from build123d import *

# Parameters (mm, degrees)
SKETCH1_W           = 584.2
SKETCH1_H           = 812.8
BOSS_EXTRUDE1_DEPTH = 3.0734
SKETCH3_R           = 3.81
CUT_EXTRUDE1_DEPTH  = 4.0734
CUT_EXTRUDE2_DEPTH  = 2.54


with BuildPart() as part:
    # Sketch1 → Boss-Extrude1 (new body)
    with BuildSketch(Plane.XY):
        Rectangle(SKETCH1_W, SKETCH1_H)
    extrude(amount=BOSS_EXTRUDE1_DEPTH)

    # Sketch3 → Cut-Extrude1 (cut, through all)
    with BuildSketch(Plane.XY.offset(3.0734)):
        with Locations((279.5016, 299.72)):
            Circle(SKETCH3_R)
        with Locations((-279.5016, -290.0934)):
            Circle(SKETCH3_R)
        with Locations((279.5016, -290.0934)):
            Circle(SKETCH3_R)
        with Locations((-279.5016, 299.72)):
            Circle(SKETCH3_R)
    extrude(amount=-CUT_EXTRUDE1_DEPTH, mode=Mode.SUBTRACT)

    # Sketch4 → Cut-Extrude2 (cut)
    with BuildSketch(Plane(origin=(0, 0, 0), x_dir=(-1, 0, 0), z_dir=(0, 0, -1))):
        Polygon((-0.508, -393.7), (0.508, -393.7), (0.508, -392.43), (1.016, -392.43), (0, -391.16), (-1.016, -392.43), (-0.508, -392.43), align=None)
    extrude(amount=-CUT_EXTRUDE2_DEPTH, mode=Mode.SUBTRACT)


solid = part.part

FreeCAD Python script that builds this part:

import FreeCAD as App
import Part
import Sketcher
Q = App.Units.Quantity

doc = App.newDocument("Part")
params = doc.addObject("Spreadsheet::Sheet", "Params")
for row, (alias, value) in enumerate([
    ("sketch1_width", "23 in"),
    ("sketch1_height", "32 in"),
    ("pad1_length", "0.121 in"),
    ("sketch2_diameter", "0.3 in"),
    ("sketch3_width", "0.04 in"),
    ("sketch3_width2", "0.02 in"),
    ("sketch3_height", "0.05 in"),
    ("pocket2_length", "0.1 in"),
], start=1):
    params.set(f"A{row}", alias)
    params.set(f"B{row}", "=" + value)
    params.setAlias(f"B{row}", alias)

body = doc.addObject("PartDesign::Body", "Body")

sketch1 = doc.addObject("Sketcher::SketchObject", "Sketch")
body.addObject(sketch1)
sketch1.AttachmentSupport = (doc.XY_Plane, [""])
sketch1.MapMode = "FlatFace"
sketch1.addGeometry([
    Part.LineSegment(App.Vector(-292.1, 406.4, 0), App.Vector(-292.1, -406.4, 0)),
    Part.LineSegment(App.Vector(-292.1, -406.4, 0), App.Vector(292.1, -406.4, 0)),
    Part.LineSegment(App.Vector(292.1, -406.4, 0), App.Vector(292.1, 406.4, 0)),
    Part.LineSegment(App.Vector(292.1, 406.4, 0), App.Vector(-292.1, 406.4, 0)),
], False)
sketch1.addConstraint([
    Sketcher.Constraint("Coincident", 0, 2, 1, 1),
    Sketcher.Constraint("Coincident", 1, 2, 2, 1),
    Sketcher.Constraint("Coincident", 2, 2, 3, 1),
    Sketcher.Constraint("Coincident", 3, 2, 0, 1),
    Sketcher.Constraint("Vertical", 0),
    Sketcher.Constraint("Horizontal", 1),
    Sketcher.Constraint("Vertical", 2),
    Sketcher.Constraint("Horizontal", 3),
    Sketcher.Constraint("Symmetric", 0, 2, 2, 2, -1, 1),
    Sketcher.Constraint("DistanceX", 1, 1, 1, 2, Q("23 in")),
    Sketcher.Constraint("DistanceY", 0, 2, 0, 1, Q("32 in")),
])
sketch1.setExpression("Constraints[9]", "Params.sketch1_width")
sketch1.setExpression("Constraints[10]", "Params.sketch1_height")
pad1 = doc.addObject("PartDesign::Pad", "Pad")
body.addObject(pad1)
pad1.Profile = sketch1
pad1.setExpression("Length", "Params.pad1_length")

sketch2 = doc.addObject("Sketcher::SketchObject", "Sketch001")
body.addObject(sketch2)
sketch2.AttachmentSupport = (doc.XY_Plane, [""])
sketch2.MapMode = "FlatFace"
sketch2.AttachmentOffset = App.Placement(App.Vector(0, 0, 0.121 * 25.4), App.Rotation())
sketch2.addGeometry([
    Part.Circle(App.Vector(279.5016, 299.72, 0), App.Vector(0, 0, 1), 3.81),
    Part.Circle(App.Vector(-279.5016, -290.0934, 0), App.Vector(0, 0, 1), 3.81),
    Part.Circle(App.Vector(279.5016, -290.0934, 0), App.Vector(0, 0, 1), 3.81),
    Part.Circle(App.Vector(-279.5016, 299.72, 0), App.Vector(0, 0, 1), 3.81),
], False)
sketch2.addConstraint([
    Sketcher.Constraint("Equal", 0, 1),
    Sketcher.Constraint("Equal", 1, 2),
    Sketcher.Constraint("Equal", 2, 3),
    Sketcher.Constraint("Symmetric", 1, 3, 2, 3, -2),
    Sketcher.Constraint("Symmetric", 0, 3, 3, 3, -2),
    Sketcher.Constraint("Vertical", 0, 3, 2, 3),
    Sketcher.Constraint("Diameter", 0, Q("0.3 in")),
    Sketcher.Constraint("DistanceY", -1, 1, 0, 3, Q("11.8 in")),
    Sketcher.Constraint("DistanceX", -1, 1, 0, 3, Q("11.004 in")),
    Sketcher.Constraint("DistanceY", 1, 3, -1, 1, Q("11.421 in")),
])
sketch2.setExpression("Constraints[6]", "Params.sketch2_diameter")
pocket1 = doc.addObject("PartDesign::Pocket", "Pocket")
body.addObject(pocket1)
pocket1.Profile = sketch2
pocket1.Type = "ThroughAll"

sketch3 = doc.addObject("Sketcher::SketchObject", "Sketch002")
body.addObject(sketch3)
sketch3.AttachmentSupport = (doc.XY_Plane, [""])
sketch3.MapMode = "FlatFace"
sketch3.addGeometry([
    Part.LineSegment(App.Vector(0.508, -393.7, 0), App.Vector(-0.508, -393.7, 0)),
    Part.LineSegment(App.Vector(-0.508, -393.7, 0), App.Vector(-0.508, -392.43, 0)),
    Part.LineSegment(App.Vector(-0.508, -392.43, 0), App.Vector(-1.016, -392.43, 0)),
    Part.LineSegment(App.Vector(-1.016, -392.43, 0), App.Vector(0, -391.16, 0)),
    Part.LineSegment(App.Vector(0, -391.16, 0), App.Vector(1.016, -392.43, 0)),
    Part.LineSegment(App.Vector(1.016, -392.43, 0), App.Vector(0.508, -392.43, 0)),
    Part.LineSegment(App.Vector(0.508, -392.43, 0), App.Vector(0.508, -393.7, 0)),
], False)
sketch3.addConstraint([
    Sketcher.Constraint("Coincident", 0, 2, 1, 1),
    Sketcher.Constraint("Coincident", 1, 2, 2, 1),
    Sketcher.Constraint("Coincident", 2, 2, 3, 1),
    Sketcher.Constraint("Coincident", 3, 2, 4, 1),
    Sketcher.Constraint("Coincident", 4, 2, 5, 1),
    Sketcher.Constraint("Coincident", 5, 2, 6, 1),
    Sketcher.Constraint("Coincident", 6, 2, 0, 1),
    Sketcher.Constraint("Horizontal", 0),
    Sketcher.Constraint("Vertical", 1),
    Sketcher.Constraint("Horizontal", 2),
    Sketcher.Constraint("Horizontal", 5),
    Sketcher.Constraint("Vertical", 6),
    Sketcher.Constraint("Symmetric", 2, 2, 4, 2, -2),
    Sketcher.Constraint("PointOnObject", 3, 2, -2),
    Sketcher.Constraint("Equal", 2, 5),
    Sketcher.Constraint("DistanceX", 0, 2, 0, 1, Q("0.04 in")),
    Sketcher.Constraint("DistanceX", 2, 2, 2, 1, Q("0.02 in")),
    Sketcher.Constraint("DistanceY", 1, 1, 1, 2, Q("0.05 in")),
    Sketcher.Constraint("DistanceY", 0, 2, -1, 1, Q("15.5 in")),
    Sketcher.Constraint("DistanceY", 3, 2, -1, 1, Q("15.4 in")),
])
sketch3.setExpression("Constraints[15]", "Params.sketch3_width")
sketch3.setExpression("Constraints[16]", "Params.sketch3_width2")
sketch3.setExpression("Constraints[17]", "Params.sketch3_height")
pocket2 = doc.addObject("PartDesign::Pocket", "Pocket001")
body.addObject(pocket2)
pocket2.Profile = sketch3
pocket2.setExpression("Length", "Params.pocket2_length")
pocket2.Reversed = True

doc.recompute()
